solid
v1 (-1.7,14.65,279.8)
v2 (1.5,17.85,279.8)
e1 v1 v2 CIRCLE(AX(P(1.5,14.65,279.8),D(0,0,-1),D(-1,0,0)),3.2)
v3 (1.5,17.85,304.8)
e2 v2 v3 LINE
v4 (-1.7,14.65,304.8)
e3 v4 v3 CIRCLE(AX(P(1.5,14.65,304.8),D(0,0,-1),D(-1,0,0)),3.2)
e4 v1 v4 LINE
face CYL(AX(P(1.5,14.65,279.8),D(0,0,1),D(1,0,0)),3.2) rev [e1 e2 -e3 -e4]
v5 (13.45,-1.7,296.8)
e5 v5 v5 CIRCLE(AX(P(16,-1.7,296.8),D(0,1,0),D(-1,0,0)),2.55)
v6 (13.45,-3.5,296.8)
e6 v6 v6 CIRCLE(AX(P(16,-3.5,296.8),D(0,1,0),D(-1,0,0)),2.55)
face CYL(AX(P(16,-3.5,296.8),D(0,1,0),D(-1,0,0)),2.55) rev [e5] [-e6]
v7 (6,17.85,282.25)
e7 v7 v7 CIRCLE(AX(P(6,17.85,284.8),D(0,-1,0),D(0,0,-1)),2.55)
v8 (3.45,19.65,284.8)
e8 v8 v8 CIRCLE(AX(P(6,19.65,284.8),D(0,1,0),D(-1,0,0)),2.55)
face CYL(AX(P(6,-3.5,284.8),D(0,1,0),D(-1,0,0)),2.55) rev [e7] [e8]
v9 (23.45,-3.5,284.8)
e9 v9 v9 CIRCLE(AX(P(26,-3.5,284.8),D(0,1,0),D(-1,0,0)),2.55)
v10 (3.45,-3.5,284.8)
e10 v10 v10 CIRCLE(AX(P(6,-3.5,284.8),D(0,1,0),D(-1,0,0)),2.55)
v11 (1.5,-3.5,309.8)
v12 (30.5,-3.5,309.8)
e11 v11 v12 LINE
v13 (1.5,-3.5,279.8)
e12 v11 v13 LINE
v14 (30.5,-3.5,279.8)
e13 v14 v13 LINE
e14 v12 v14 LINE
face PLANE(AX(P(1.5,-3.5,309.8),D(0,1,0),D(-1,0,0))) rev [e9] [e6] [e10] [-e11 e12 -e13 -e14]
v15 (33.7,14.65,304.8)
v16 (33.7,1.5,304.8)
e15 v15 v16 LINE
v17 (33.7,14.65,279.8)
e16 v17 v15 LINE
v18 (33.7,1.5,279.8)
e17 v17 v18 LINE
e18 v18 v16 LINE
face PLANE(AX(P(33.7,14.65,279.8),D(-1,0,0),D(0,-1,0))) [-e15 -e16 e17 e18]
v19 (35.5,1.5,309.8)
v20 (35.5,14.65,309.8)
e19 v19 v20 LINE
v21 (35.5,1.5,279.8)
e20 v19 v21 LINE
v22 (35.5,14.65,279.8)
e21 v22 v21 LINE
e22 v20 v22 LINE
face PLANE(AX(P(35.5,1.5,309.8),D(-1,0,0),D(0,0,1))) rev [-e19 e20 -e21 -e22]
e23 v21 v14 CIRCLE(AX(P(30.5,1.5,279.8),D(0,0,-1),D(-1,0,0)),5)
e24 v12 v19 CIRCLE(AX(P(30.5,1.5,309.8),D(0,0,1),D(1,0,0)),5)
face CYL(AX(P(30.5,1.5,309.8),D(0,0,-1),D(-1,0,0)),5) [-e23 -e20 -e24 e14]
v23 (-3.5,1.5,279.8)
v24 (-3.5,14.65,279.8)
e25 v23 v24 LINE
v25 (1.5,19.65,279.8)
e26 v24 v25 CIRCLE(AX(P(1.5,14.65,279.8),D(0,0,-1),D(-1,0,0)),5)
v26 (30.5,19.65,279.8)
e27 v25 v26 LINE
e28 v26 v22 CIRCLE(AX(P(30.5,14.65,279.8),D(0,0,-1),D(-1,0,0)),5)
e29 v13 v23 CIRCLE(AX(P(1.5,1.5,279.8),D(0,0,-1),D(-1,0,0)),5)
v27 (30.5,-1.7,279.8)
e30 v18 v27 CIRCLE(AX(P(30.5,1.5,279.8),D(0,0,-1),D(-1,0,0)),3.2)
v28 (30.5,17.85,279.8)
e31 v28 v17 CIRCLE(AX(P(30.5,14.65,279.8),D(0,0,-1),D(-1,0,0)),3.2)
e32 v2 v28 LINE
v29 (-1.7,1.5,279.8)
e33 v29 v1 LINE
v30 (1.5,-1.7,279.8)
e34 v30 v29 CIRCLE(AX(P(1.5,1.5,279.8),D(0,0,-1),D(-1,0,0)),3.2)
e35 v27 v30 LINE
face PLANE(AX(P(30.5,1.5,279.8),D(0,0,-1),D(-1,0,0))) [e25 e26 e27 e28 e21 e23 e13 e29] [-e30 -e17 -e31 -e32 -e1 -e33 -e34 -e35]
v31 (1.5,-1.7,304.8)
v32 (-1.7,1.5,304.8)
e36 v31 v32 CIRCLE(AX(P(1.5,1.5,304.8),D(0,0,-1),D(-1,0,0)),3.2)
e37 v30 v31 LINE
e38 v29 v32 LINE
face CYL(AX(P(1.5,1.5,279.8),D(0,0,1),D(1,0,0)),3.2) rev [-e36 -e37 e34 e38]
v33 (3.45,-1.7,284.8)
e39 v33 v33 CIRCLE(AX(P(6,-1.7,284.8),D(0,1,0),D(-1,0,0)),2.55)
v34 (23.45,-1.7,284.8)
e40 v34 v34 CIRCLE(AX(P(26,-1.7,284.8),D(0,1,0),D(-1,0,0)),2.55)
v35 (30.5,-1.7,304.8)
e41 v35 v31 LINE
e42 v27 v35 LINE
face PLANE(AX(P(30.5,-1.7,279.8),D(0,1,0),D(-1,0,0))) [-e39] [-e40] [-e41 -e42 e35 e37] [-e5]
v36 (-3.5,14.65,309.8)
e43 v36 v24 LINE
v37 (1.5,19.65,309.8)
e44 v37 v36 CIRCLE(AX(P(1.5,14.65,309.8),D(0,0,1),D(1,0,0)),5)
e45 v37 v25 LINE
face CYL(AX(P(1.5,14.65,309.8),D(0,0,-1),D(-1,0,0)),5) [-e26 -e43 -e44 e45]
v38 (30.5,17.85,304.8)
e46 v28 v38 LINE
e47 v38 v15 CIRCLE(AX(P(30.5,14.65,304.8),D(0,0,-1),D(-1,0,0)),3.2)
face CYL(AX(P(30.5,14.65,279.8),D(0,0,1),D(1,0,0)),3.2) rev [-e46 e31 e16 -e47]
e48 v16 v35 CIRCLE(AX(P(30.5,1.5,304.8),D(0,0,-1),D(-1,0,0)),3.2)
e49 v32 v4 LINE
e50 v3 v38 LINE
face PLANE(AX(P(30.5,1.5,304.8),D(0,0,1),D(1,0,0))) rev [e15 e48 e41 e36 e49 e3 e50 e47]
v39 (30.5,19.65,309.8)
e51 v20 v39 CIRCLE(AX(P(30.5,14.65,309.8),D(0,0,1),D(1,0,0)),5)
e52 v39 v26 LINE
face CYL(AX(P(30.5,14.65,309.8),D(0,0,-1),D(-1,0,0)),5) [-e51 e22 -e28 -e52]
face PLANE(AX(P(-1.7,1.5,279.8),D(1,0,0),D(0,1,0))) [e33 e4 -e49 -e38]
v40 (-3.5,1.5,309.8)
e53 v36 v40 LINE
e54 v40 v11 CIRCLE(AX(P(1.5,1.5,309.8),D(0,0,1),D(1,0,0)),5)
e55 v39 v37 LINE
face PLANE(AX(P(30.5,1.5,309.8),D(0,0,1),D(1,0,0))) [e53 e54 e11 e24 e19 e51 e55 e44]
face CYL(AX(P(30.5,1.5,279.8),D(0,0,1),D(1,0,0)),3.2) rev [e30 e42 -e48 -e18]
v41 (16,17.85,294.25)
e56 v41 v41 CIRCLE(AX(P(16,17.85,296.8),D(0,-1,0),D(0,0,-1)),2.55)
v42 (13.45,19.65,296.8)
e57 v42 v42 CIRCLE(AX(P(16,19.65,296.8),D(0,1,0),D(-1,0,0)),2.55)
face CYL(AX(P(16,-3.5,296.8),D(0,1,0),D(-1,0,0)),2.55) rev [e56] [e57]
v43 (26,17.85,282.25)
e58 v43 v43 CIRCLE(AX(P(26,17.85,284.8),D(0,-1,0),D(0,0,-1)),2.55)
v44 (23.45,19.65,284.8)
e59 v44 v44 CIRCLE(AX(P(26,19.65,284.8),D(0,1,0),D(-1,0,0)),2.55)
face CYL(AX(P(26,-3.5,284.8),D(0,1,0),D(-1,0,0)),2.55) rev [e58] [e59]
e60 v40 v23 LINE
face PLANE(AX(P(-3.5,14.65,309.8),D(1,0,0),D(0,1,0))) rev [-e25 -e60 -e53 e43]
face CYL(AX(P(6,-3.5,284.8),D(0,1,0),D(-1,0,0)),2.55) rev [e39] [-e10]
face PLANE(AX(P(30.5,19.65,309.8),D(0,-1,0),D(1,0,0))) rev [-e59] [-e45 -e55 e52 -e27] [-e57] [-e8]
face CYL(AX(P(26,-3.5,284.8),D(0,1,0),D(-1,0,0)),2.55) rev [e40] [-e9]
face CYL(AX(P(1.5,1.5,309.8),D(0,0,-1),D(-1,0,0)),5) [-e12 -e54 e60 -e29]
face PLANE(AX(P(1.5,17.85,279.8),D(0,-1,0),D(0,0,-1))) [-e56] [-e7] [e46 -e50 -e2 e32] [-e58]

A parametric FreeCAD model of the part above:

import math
import FreeCAD as App
import Part
import Sketcher

V = App.Vector
Q = App.Units.Quantity

doc = App.newDocument("Part")
body = doc.addObject("PartDesign::Body", "Body")

sketch1 = body.newObject("Sketcher::SketchObject", "Sketch")
sketch1.AttachmentSupport = (doc.getObject("XY_Plane"), [""])
sketch1.MapMode = "FlatFace"
sketch1.AttachmentOffset = App.Placement(V(0, 0, 304.8), App.Rotation())
sketch1.addGeometry([
    Part.LineSegment(V(36, 2, 0), V(36, 15, 0)),
    Part.ArcOfCircle(Part.Circle(V(30, 15, 0), V(0, 0, 1), 5), math.radians(0), math.radians(90)),
    Part.LineSegment(V(30, 20, 0), V(2, 20, 0)),
    Part.ArcOfCircle(Part.Circle(V(2, 15, 0), V(0, 0, 1), 5), math.radians(90), math.radians(180)),
    Part.LineSegment(V(-4, 15, 0), V(-4, 2, 0)),
    Part.ArcOfCircle(Part.Circle(V(2, 2, 0), V(0, 0, 1), 5), math.radians(180), math.radians(270)),
    Part.LineSegment(V(2, -4, 0), V(30, -4, 0)),
    Part.ArcOfCircle(Part.Circle(V(30, 2, 0), V(0, 0, 1), 5), math.radians(-90), math.radians(0)),
], False)
sketch1.addConstraint([
    Sketcher.Constraint("Tangent", 0, 2, 1, 1),
    Sketcher.Constraint("Tangent", 1, 2, 2, 1),
    Sketcher.Constraint("Tangent", 2, 2, 3, 1),
    Sketcher.Constraint("Tangent", 3, 2, 4, 1),
    Sketcher.Constraint("Tangent", 4, 2, 5, 1),
    Sketcher.Constraint("Tangent", 5, 2, 6, 1),
    Sketcher.Constraint("Tangent", 6, 2, 7, 1),
    Sketcher.Constraint("Tangent", 7, 2, 0, 1),
    Sketcher.Constraint("Vertical", 0),
    Sketcher.Constraint("Horizontal", 2),
    Sketcher.Constraint("Vertical", 4),
    Sketcher.Constraint("Horizontal", 6),
    Sketcher.Constraint("Equal", 1, 3),
    Sketcher.Constraint("Equal", 3, 5),
    Sketcher.Constraint("Equal", 5, 7),
    Sketcher.Constraint("Radius", 1, Q("5 mm")),
    Sketcher.Constraint("DistanceX", 2, 2, 2, 1, Q("29 mm")),
    Sketcher.Constraint("DistanceY", 0, 1, 0, 2, Q("13.15 mm")),
    Sketcher.Constraint("DistanceX", -1, 1, 1, 3, Q("30.5 mm")),
    Sketcher.Constraint("DistanceY", -1, 1, 5, 3, Q("1.5 mm")),
])
pad1 = body.newObject("PartDesign::Pad", "Pad")
pad1.Profile = sketch1
pad1.Length = 5

sketch2 = body.newObject("Sketcher::SketchObject", "Sketch001")
sketch2.AttachmentSupport = (doc.getObject("XY_Plane"), [""])
sketch2.MapMode = "FlatFace"
sketch2.AttachmentOffset = App.Placement(V(0, 0, 279.8), App.Rotation())
sketch2.addGeometry([
    Part.LineSegment(V(30.5, -3.5, 0), V(1.5, -3.5, 0)),
    Part.ArcOfCircle(Part.Circle(V(1.5, 1.5, 0), V(0, 0, 1), 5), math.radians(180), math.radians(270)),
    Part.LineSegment(V(-3.5, 1.5, 0), V(-3.5, 14.7, 0)),
    Part.ArcOfCircle(Part.Circle(V(1.5, 14.7, 0), V(0, 0, 1), 5), math.radians(90), math.radians(180)),
    Part.LineSegment(V(1.5, 19.6, 0), V(30.5, 19.6, 0)),
    Part.ArcOfCircle(Part.Circle(V(30.5, 14.7, 0), V(0, 0, 1), 5), math.radians(0), math.radians(90)),
    Part.LineSegment(V(35.5, 14.7, 0), V(35.5, 1.5, 0)),
    Part.ArcOfCircle(Part.Circle(V(30.5, 1.5, 0), V(0, 0, 1), 5), math.radians(-90), math.radians(0)),
    Part.LineSegment(V(30.5, 17.9, 0), V(1.5, 17.9, 0)),
    Part.ArcOfCircle(Part.Circle(V(1.5, 14.7, 0), V(0, 0, 1), 3.2), math.radians(90), math.radians(180)),
    Part.LineSegment(V(-1.7, 14.7, 0), V(-1.7, 1.5, 0)),
    Part.ArcOfCircle(Part.Circle(V(1.5, 1.5, 0), V(0, 0, 1), 3.2), math.radians(180), math.radians(270)),
    Part.LineSegment(V(1.5, -1.7, 0), V(30.5, -1.7, 0)),
    Part.ArcOfCircle(Part.Circle(V(30.5, 1.5, 0), V(0, 0, 1), 3.2), math.radians(-90), math.radians(0)),
    Part.LineSegment(V(33.7, 1.5, 0), V(33.7, 14.7, 0)),
    Part.ArcOfCircle(Part.Circle(V(30.5, 14.7, 0), V(0, 0, 1), 3.2), math.radians(0), math.radians(90)),
], False)
sketch2.addConstraint([
    Sketcher.Constraint("Tangent", 0, 2, 1, 2),
    Sketcher.Constraint("Tangent", 1, 1, 2, 1),
    Sketcher.Constraint("Tangent", 2, 2, 3, 2),
    Sketcher.Constraint("Tangent", 3, 1, 4, 1),
    Sketcher.Constraint("Tangent", 4, 2, 5, 2),
    Sketcher.Constraint("Tangent", 5, 1, 6, 1),
    Sketcher.Constraint("Tangent", 6, 2, 7, 2),
    Sketcher.Constraint("Tangent", 7, 1, 0, 1),
    Sketcher.Constraint("Tangent", 8, 2, 9, 1),
    Sketcher.Constraint("Tangent", 9, 2, 10, 1),
    Sketcher.Constraint("Tangent", 10, 2, 11, 1),
    Sketcher.Constraint("Tangent", 11, 2, 12, 1),
    Sketcher.Constraint("Tangent", 12, 2, 13, 1),
    Sketcher.Constraint("Tangent", 13, 2, 14, 1),
    Sketcher.Constraint("Tangent", 14, 2, 15, 1),
    Sketcher.Constraint("Tangent", 15, 2, 8, 1),
    Sketcher.Constraint("Horizontal", 0),
    Sketcher.Constraint("Vertical", 2),
    Sketcher.Constraint("Horizontal", 4),
    Sketcher.Constraint("Vertical", 6),
    Sketcher.Constraint("Horizontal", 8),
    Sketcher.Constraint("Vertical", 10),
    Sketcher.Constraint("Horizontal", 12),
    Sketcher.Constraint("Vertical", 14),
    Sketcher.Constraint("Coincident", 9, 3, 3, 3),
    Sketcher.Constraint("Coincident", 11, 3, 1, 3),
    Sketcher.Constraint("Coincident", 13, 3, 7, 3),
    Sketcher.Constraint("Equal", 1, 3),
    Sketcher.Constraint("Equal", 3, 5),
    Sketcher.Constraint("Equal", 5, 7),
    Sketcher.Constraint("Equal", 13, 15),
    Sketcher.Constraint("Radius", 1, Q("5 mm")),
    Sketcher.Constraint("Radius", 9, Q("3.2 mm")),
    Sketcher.Constraint("DistanceX", 0, 2, 0, 1, Q("29 mm")),
    Sketcher.Constraint("DistanceY", 2, 1, 2, 2, Q("13.15 mm")),
    Sketcher.Constraint("DistanceX", -1, 1, 1, 3, Q("1.5 mm")),
    Sketcher.Constraint("DistanceY", -1, 1, 1, 3, Q("1.5 mm")),
])
pad2 = body.newObject("PartDesign::Pad", "Pad001")
pad2.Profile = sketch2
pad2.Length = 25

sketch3 = body.newObject("Sketcher::SketchObject", "Sketch002")
sketch3.AttachmentSupport = (doc.getObject("XZ_Plane"), [""])
sketch3.MapMode = "FlatFace"
sketch3.AttachmentOffset = App.Placement(V(0, 0, -19.65), App.Rotation())
sketch3.addGeometry([
    Part.Circle(V(16, 296.8, 0), V(0, 0, 1), 2.5),
    Part.Circle(V(26, 284.8, 0), V(0, 0, 1), 2.5),
    Part.Circle(V(6, 284.8, 0), V(0, 0, 1), 2.5),
], False)
sketch3.addConstraint([
    Sketcher.Constraint("Equal", 0, 1),
    Sketcher.Constraint("Equal", 1, 2),
    Sketcher.Constraint("Horizontal", 1, 3, 2, 3),
    Sketcher.Constraint("Diameter", 0, Q("5.1 mm")),
    Sketcher.Constraint("DistanceX", -1, 1, 0, 3, Q("16 mm")),
    Sketcher.Constraint("DistanceX", -1, 1, 1, 3, Q("26 mm")),
    Sketcher.Constraint("DistanceX", -1, 1, 2, 3, Q("6 mm")),
    Sketcher.Constraint("DistanceY", 1, 3, 0, 3, Q("12 mm")),
    Sketcher.Constraint("DistanceY", -1, 1, 0, 3, Q("296.8 mm")),
])
pocket1 = body.newObject("PartDesign::Pocket", "Pocket")
pocket1.Profile = sketch3
pocket1.Type = "ThroughAll"
pocket1.Reversed = True

doc.recompute()
